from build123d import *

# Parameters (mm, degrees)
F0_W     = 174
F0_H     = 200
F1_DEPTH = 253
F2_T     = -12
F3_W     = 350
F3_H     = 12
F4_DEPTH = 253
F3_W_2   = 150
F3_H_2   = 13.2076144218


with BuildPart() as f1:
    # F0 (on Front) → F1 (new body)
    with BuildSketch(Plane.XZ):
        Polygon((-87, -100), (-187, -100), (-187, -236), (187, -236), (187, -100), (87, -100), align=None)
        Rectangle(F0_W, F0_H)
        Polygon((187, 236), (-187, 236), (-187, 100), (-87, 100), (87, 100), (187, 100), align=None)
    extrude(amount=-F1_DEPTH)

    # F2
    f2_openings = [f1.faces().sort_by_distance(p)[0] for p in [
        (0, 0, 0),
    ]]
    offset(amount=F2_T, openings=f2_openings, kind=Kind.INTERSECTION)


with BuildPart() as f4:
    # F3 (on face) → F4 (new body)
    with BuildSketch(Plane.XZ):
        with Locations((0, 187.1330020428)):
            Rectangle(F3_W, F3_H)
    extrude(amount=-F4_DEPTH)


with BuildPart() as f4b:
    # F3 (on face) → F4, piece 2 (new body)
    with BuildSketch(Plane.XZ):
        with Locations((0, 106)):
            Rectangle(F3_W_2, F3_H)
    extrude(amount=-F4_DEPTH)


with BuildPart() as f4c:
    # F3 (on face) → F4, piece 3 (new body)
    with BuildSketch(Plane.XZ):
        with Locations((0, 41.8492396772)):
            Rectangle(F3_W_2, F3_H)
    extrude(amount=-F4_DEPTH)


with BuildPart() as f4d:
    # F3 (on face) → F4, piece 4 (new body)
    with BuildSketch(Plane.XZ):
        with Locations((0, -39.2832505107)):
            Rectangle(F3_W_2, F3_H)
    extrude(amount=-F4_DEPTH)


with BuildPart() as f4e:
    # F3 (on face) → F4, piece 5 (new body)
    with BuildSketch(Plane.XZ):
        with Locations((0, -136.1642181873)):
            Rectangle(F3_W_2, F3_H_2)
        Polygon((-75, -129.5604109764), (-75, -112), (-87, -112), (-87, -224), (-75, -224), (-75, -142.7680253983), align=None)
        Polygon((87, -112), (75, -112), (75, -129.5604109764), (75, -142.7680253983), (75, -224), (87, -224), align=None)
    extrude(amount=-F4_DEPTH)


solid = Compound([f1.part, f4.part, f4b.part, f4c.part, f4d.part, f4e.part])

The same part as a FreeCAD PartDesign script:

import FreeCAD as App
import Part
import Sketcher
Q = App.Units.Quantity


def faces_at(feature, points):
    """Names of the faces that lie closest to the given points."""
    faces = feature.Shape.Faces
    near = lambda p: min(range(len(faces)), key=lambda i: faces[i].distToShape(Part.Vertex(*p))[0])
    return sorted({f"Face{near(p) + 1}" for p in points})

doc = App.newDocument("Part")
params = doc.addObject("Spreadsheet::Sheet", "Params")
for row, (alias, value) in enumerate([
    ("sketch1_width", "374 mm"),
    ("sketch1_width2", "100 mm"),
    ("sketch1_height", "136 mm"),
    ("sketch1_height2", "200 mm"),
    ("pad1_length", "253 mm"),
    ("thickness_wall", "12 mm"),
    ("sketch2_width", "350 mm"),
    ("sketch2_height", "12 mm"),
    ("pad2_length", "253 mm"),
    ("sketch3_width", "150 mm"),
    ("sketch3_height", "12 mm"),
    ("pad3_length", "253 mm"),
    ("sketch4_width", "150 mm"),
    ("sketch4_height", "12 mm"),
    ("pad4_length", "253 mm"),
    ("sketch5_width", "150 mm"),
    ("sketch5_height", "12 mm"),
    ("pad5_length", "253 mm"),
    ("sketch6_width", "150 mm"),
    ("sketch6_width2", "12 mm"),
    ("sketch6_height", "112 mm"),
    ("pad6_length", "253 mm"),
], start=1):
    params.set(f"A{row}", alias)
    params.set(f"B{row}", "=" + value)
    params.setAlias(f"B{row}", alias)

body = doc.addObject("PartDesign::Body", "Body")

# Sketch on XZ plane
sketch1 = body.newObject("Sketcher::SketchObject", "Sketch")
sketch1.AttachmentSupport = (doc.getObject("XZ_Plane"), [""])
sketch1.MapMode = "FlatFace"
sketch1.addGeometry(Part.LineSegment(App.Vector(-187, -100, 0), App.Vector(-187, -236, 0)), False)
sketch1.addGeometry(Part.LineSegment(App.Vector(-187, -236, 0), App.Vector(187, -236, 0)), False)
sketch1.addGeometry(Part.LineSegment(App.Vector(187, -236, 0), App.Vector(187, -100, 0)), False)
sketch1.addGeometry(Part.LineSegment(App.Vector(187, -100, 0), App.Vector(87, -100, 0)), False)
sketch1.addGeometry(Part.LineSegment(App.Vector(87, -100, 0), App.Vector(87, 100, 0)), False)
sketch1.addGeometry(Part.LineSegment(App.Vector(87, 100, 0), App.Vector(187, 100, 0)), False)
sketch1.addGeometry(Part.LineSegment(App.Vector(187, 100, 0), App.Vector(187, 236, 0)), False)
sketch1.addGeometry(Part.LineSegment(App.Vector(187, 236, 0), App.Vector(-187, 236, 0)), False)
sketch1.addGeometry(Part.LineSegment(App.Vector(-187, 236, 0), App.Vector(-187, 100, 0)), False)
sketch1.addGeometry(Part.LineSegment(App.Vector(-187, 100, 0), App.Vector(-87, 100, 0)), False)
sketch1.addGeometry(Part.LineSegment(App.Vector(-87, 100, 0), App.Vector(-87, -100, 0)), False)
sketch1.addGeometry(Part.LineSegment(App.Vector(-87, -100, 0), App.Vector(-187, -100, 0)), False)
sketch1.addConstraint(Sketcher.Constraint("Coincident", 0, 2, 1, 1))
sketch1.addConstraint(Sketcher.Constraint("Coincident", 1, 2, 2, 1))
sketch1.addConstraint(Sketcher.Constraint("Coincident", 2, 2, 3, 1))
sketch1.addConstraint(Sketcher.Constraint("Coincident", 3, 2, 4, 1))
sketch1.addConstraint(Sketcher.Constraint("Coincident", 4, 2, 5, 1))
sketch1.addConstraint(Sketcher.Constraint("Coincident", 5, 2, 6, 1))
sketch1.addConstraint(Sketcher.Constraint("Coincident", 6, 2, 7, 1))
sketch1.addConstraint(Sketcher.Constraint("Coincident", 7, 2, 8, 1))
sketch1.addConstraint(Sketcher.Constraint("Coincident", 8, 2, 9, 1))
sketch1.addConstraint(Sketcher.Constraint("Coincident", 9, 2, 10, 1))
sketch1.addConstraint(Sketcher.Constraint("Coincident", 10, 2, 11, 1))
sketch1.addConstraint(Sketcher.Constraint("Coincident", 11, 2, 0, 1))
sketch1.addConstraint(Sketcher.Constraint("Vertical", 0))
sketch1.addConstraint(Sketcher.Constraint("Horizontal", 1))
sketch1.addConstraint(Sketcher.Constraint("Vertical", 2))
sketch1.addConstraint(Sketcher.Constraint("Horizontal", 3))
sketch1.addConstraint(Sketcher.Constraint("Vertical", 4))
sketch1.addConstraint(Sketcher.Constraint("Horizontal", 5))
sketch1.addConstraint(Sketcher.Constraint("Vertical", 6))
sketch1.addConstraint(Sketcher.Constraint("Horizontal", 7))
sketch1.addConstraint(Sketcher.Constraint("Vertical", 8))
sketch1.addConstraint(Sketcher.Constraint("Horizontal", 9))
sketch1.addConstraint(Sketcher.Constraint("Vertical", 10))
sketch1.addConstraint(Sketcher.Constraint("Horizontal", 11))
sketch1.addConstraint(Sketcher.Constraint("Symmetric", 0, 2, 6, 2, -1, 1))
sketch1.addConstraint(Sketcher.Constraint("Symmetric", 2, 2, 8, 2, -1, 1))
sketch1.addConstraint(Sketcher.Constraint("Symmetric", 4, 2, 10, 2, -1, 1))
sketch1.addConstraint(Sketcher.Constraint("Symmetric", 5, 2, 8, 2, -2))
sketch1.addConstraint(Sketcher.Constraint("DistanceX", 1, 1, 1, 2, Q("374 mm")))
sketch1.addConstraint(Sketcher.Constraint("DistanceX", 3, 2, 3, 1, Q("100 mm")))
sketch1.addConstraint(Sketcher.Constraint("DistanceY", 0, 2, 0, 1, Q("136 mm")))
sketch1.addConstraint(Sketcher.Constraint("DistanceY", 4, 1, 4, 2, Q("200 mm")))
sketch1.setExpression("Constraints[28]", "Params.sketch1_width")
sketch1.setExpression("Constraints[29]", "Params.sketch1_width2")
sketch1.setExpression("Constraints[30]", "Params.sketch1_height")
sketch1.setExpression("Constraints[31]", "Params.sketch1_height2")
pad1 = body.newObject("PartDesign::Pad", "Pad")
pad1.Profile = sketch1
pad1.setExpression("Length", "Params.pad1_length")
pad1.Reversed = True
doc.recompute()

thickness = body.newObject("PartDesign::Thickness", "Thickness")
thickness.Base = (pad1, faces_at(pad1, [(0, 0, 0)]))
thickness.setExpression("Value", "Params.thickness_wall")
thickness.Reversed = True
thickness.Join = "Intersection"
body2 = doc.addObject("PartDesign::Body", "Body001")

# Sketch on XZ plane
sketch2 = body2.newObject("Sketcher::SketchObject", "Sketch001")
sketch2.AttachmentSupport = (doc.getObject("XZ_Plane001"), [""])
sketch2.MapMode = "FlatFace"
sketch2.addGeometry(Part.LineSegment(App.Vector(-175, 193, 0), App.Vector(-175, 181, 0)), False)
sketch2.addGeometry(Part.LineSegment(App.Vector(-175, 181, 0), App.Vector(175, 181, 0)), False)
sketch2.addGeometry(Part.LineSegment(App.Vector(175, 181, 0), App.Vector(175, 193, 0)), False)
sketch2.addGeometry(Part.LineSegment(App.Vector(175, 193, 0), App.Vector(-175, 193, 0)), False)
sketch2.addConstraint(Sketcher.Constraint("Coincident", 0, 2, 1, 1))
sketch2.addConstraint(Sketcher.Constraint("Coincident", 1, 2, 2, 1))
sketch2.addConstraint(Sketcher.Constraint("Coincident", 2, 2, 3, 1))
sketch2.addConstraint(Sketcher.Constraint("Coincident", 3, 2, 0, 1))
sketch2.addConstraint(Sketcher.Constraint("Vertical", 0))
sketch2.addConstraint(Sketcher.Constraint("Horizontal", 1))
sketch2.addConstraint(Sketcher.Constraint("Vertical", 2))
sketch2.addConstraint(Sketcher.Constraint("Horizontal", 3))
sketch2.addConstraint(Sketcher.Constraint("DistanceX", 1, 1, 1, 2, Q("350 mm")))
sketch2.addConstraint(Sketcher.Constraint("DistanceY", 0, 2, 0, 1, Q("12 mm")))
sketch2.addConstraint(Sketcher.Constraint("DistanceX", 0, 2, -1, 1, Q("175 mm")))
sketch2.addConstraint(Sketcher.Constraint("DistanceY", -1, 1, 0, 2, Q("181.133002 mm")))
sketch2.setExpression("Constraints[8]", "Params.sketch2_width")
sketch2.setExpression("Constraints[9]", "Params.sketch2_height")
pad2 = body2.newObject("PartDesign::Pad", "Pad001")
pad2.Profile = sketch2
pad2.setExpression("Length", "Params.pad2_length")
pad2.Reversed = True
body3 = doc.addObject("PartDesign::Body", "Body002")

# Sketch on XZ plane
sketch3 = body3.newObject("Sketcher::SketchObject", "Sketch002")
sketch3.AttachmentSupport = (doc.getObject("XZ_Plane002"), [""])
sketch3.MapMode = "FlatFace"
sketch3.addGeometry(Part.LineSegment(App.Vector(-75, 112, 0), App.Vector(-75, 100, 0)), False)
sketch3.addGeometry(Part.LineSegment(App.Vector(-75, 100, 0), App.Vector(75, 100, 0)), False)
sketch3.addGeometry(Part.LineSegment(App.Vector(75, 100, 0), App.Vector(75, 112, 0)), False)
sketch3.addGeometry(Part.LineSegment(App.Vector(75, 112, 0), App.Vector(-75, 112, 0)), False)
sketch3.addConstraint(Sketcher.Constraint("Coincident", 0, 2, 1, 1))
sketch3.addConstraint(Sketcher.Constraint("Coincident", 1, 2, 2, 1))
sketch3.addConstraint(Sketcher.Constraint("Coincident", 2, 2, 3, 1))
sketch3.addConstraint(Sketcher.Constraint("Coincident", 3, 2, 0, 1))
sketch3.addConstraint(Sketcher.Constraint("Vertical", 0))
sketch3.addConstraint(Sketcher.Constraint("Horizontal", 1))
sketch3.addConstraint(Sketcher.Constraint("Vertical", 2))
sketch3.addConstraint(Sketcher.Constraint("Horizontal", 3))
sketch3.addConstraint(Sketcher.Constraint("DistanceX", 1, 1, 1, 2, Q("150 mm")))
sketch3.addConstraint(Sketcher.Constraint("DistanceY", 0, 2, 0, 1, Q("12 mm")))
sketch3.addConstraint(Sketcher.Constraint("DistanceX", 0, 2, -1, 1, Q("75 mm")))
sketch3.addConstraint(Sketcher.Constraint("DistanceY", -1, 1, 0, 2, Q("100 mm")))
sketch3.setExpression("Constraints[8]", "Params.sketch3_width")
sketch3.setExpression("Constraints[9]", "Params.sketch3_height")
pad3 = body3.newObject("PartDesign::Pad", "Pad002")
pad3.Profile = sketch3
pad3.setExpression("Length", "Params.pad3_length")
pad3.Reversed = True
body4 = doc.addObject("PartDesign::Body", "Body003")

# Sketch on XZ plane
sketch4 = body4.newObject("Sketcher::SketchObject", "Sketch003")
sketch4.AttachmentSupport = (doc.getObject("XZ_Plane003"), [""])
sketch4.MapMode = "FlatFace"
sketch4.addGeometry(Part.LineSegment(App.Vector(-75, 48, 0), App.Vector(-75, 36, 0)), False)
sketch4.addGeometry(Part.LineSegment(App.Vector(-75, 36, 0), App.Vector(75, 36, 0)), False)
sketch4.addGeometry(Part.LineSegment(App.Vector(75, 36, 0), App.Vector(75, 48, 0)), False)
sketch4.addGeometry(Part.LineSegment(App.Vector(75, 48, 0), App.Vector(-75, 48, 0)), False)
sketch4.addConstraint(Sketcher.Constraint("Coincident", 0, 2, 1, 1))
sketch4.addConstraint(Sketcher.Constraint("Coincident", 1, 2, 2, 1))
sketch4.addConstraint(Sketcher.Constraint("Coincident", 2, 2, 3, 1))
sketch4.addConstraint(Sketcher.Constraint("Coincident", 3, 2, 0, 1))
sketch4.addConstraint(Sketcher.Constraint("Vertical", 0))
sketch4.addConstraint(Sketcher.Constraint("Horizontal", 1))
sketch4.addConstraint(Sketcher.Constraint("Vertical", 2))
sketch4.addConstraint(Sketcher.Constraint("Horizontal", 3))
sketch4.addConstraint(Sketcher.Constraint("DistanceX", 1, 1, 1, 2, Q("150 mm")))
sketch4.addConstraint(Sketcher.Constraint("DistanceY", 0, 2, 0, 1, Q("12 mm")))
sketch4.addConstraint(Sketcher.Constraint("DistanceX", 0, 2, -1, 1, Q("75 mm")))
sketch4.addConstraint(Sketcher.Constraint("DistanceY", -1, 1, 0, 2, Q("35.84924 mm")))
sketch4.setExpression("Constraints[8]", "Params.sketch4_width")
sketch4.setExpression("Constraints[9]", "Params.sketch4_height")
pad4 = body4.newObject("PartDesign::Pad", "Pad003")
pad4.Profile = sketch4
pad4.setExpression("Length", "Params.pad4_length")
pad4.Reversed = True
body5 = doc.addObject("PartDesign::Body", "Body004")

# Sketch on XZ plane
sketch5 = body5.newObject("Sketcher::SketchObject", "Sketch004")
sketch5.AttachmentSupport = (doc.getObject("XZ_Plane004"), [""])
sketch5.MapMode = "FlatFace"
sketch5.addGeometry(Part.LineSegment(App.Vector(-75, -33, 0), App.Vector(-75, -45, 0)), False)
sketch5.addGeometry(Part.LineSegment(App.Vector(-75, -45, 0), App.Vector(75, -45, 0)), False)
sketch5.addGeometry(Part.LineSegment(App.Vector(75, -45, 0), App.Vector(75, -33, 0)), False)
sketch5.addGeometry(Part.LineSegment(App.Vector(75, -33, 0), App.Vector(-75, -33, 0)), False)
sketch5.addConstraint(Sketcher.Constraint("Coincident", 0, 2, 1, 1))
sketch5.addConstraint(Sketcher.Constraint("Coincident", 1, 2, 2, 1))
sketch5.addConstraint(Sketcher.Constraint("Coincident", 2, 2, 3, 1))
sketch5.addConstraint(Sketcher.Constraint("Coincident", 3, 2, 0, 1))
sketch5.addConstraint(Sketcher.Constraint("Vertical", 0))
sketch5.addConstraint(Sketcher.Constraint("Horizontal", 1))
sketch5.addConstraint(Sketcher.Constraint("Vertical", 2))
sketch5.addConstraint(Sketcher.Constraint("Horizontal", 3))
sketch5.addConstraint(Sketcher.Constraint("DistanceX", 1, 1, 1, 2, Q("150 mm")))
sketch5.addConstraint(Sketcher.Constraint("DistanceY", 0, 2, 0, 1, Q("12 mm")))
sketch5.addConstraint(Sketcher.Constraint("DistanceX", 0, 2, -1, 1, Q("75 mm")))
sketch5.addConstraint(Sketcher.Constraint("DistanceY", 0, 2, -1, 1, Q("45.283251 mm")))
sketch5.setExpression("Constraints[8]", "Params.sketch5_width")
sketch5.setExpression("Constraints[9]", "Params.sketch5_height")
pad5 = body5.newObject("PartDesign::Pad", "Pad004")
pad5.Profile = sketch5
pad5.setExpression("Length", "Params.pad5_length")
pad5.Reversed = True
body6 = doc.addObject("PartDesign::Body", "Body005")

# Sketch on XZ plane
sketch6 = body6.newObject("Sketcher::SketchObject", "Sketch005")
sketch6.AttachmentSupport = (doc.getObject("XZ_Plane005"), [""])
sketch6.MapMode = "FlatFace"
sketch6.addGeometry(Part.LineSegment(App.Vector(-75, -143, 0), App.Vector(75, -143, 0)), False)
sketch6.addGeometry(Part.LineSegment(App.Vector(75, -143, 0), App.Vector(75, -224, 0)), False)
sketch6.addGeometry(Part.LineSegment(App.Vector(75, -224, 0), App.Vector(87, -224, 0)), False)
sketch6.addGeometry(Part.LineSegment(App.Vector(87, -224, 0), App.Vector(87, -112, 0)), False)
sketch6.addGeometry(Part.LineSegment(App.Vector(87, -112, 0), App.Vector(75, -112, 0)), False)
sketch6.addGeometry(Part.LineSegment(App.Vector(75, -112, 0), App.Vector(75, -130, 0)), False)
sketch6.addGeometry(Part.LineSegment(App.Vector(75, -130, 0), App.Vector(-75, -130, 0)), False)
sketch6.addGeometry(Part.LineSegment(App.Vector(-75, -130, 0), App.Vector(-75, -112, 0)), False)
sketch6.addGeometry(Part.LineSegment(App.Vector(-75, -112, 0), App.Vector(-87, -112, 0)), False)
sketch6.addGeometry(Part.LineSegment(App.Vector(-87, -112, 0), App.Vector(-87, -224, 0)), False)
sketch6.addGeometry(Part.LineSegment(App.Vector(-87, -224, 0), App.Vector(-75, -224, 0)), False)
sketch6.addGeometry(Part.LineSegment(App.Vector(-75, -224, 0), App.Vector(-75, -143, 0)), False)
sketch6.addConstraint(Sketcher.Constraint("Coincident", 0, 2, 1, 1))
sketch6.addConstraint(Sketcher.Constraint("Coincident", 1, 2, 2, 1))
sketch6.addConstraint(Sketcher.Constraint("Coincident", 2, 2, 3, 1))
sketch6.addConstraint(Sketcher.Constraint("Coincident", 3, 2, 4, 1))
sketch6.addConstraint(Sketcher.Constraint("Coincident", 4, 2, 5, 1))
sketch6.addConstraint(Sketcher.Constraint("Coincident", 5, 2, 6, 1))
sketch6.addConstraint(Sketcher.Constraint("Coincident", 6, 2, 7, 1))
sketch6.addConstraint(Sketcher.Constraint("Coincident", 7, 2, 8, 1))
sketch6.addConstraint(Sketcher.Constraint("Coincident", 8, 2, 9, 1))
sketch6.addConstraint(Sketcher.Constraint("Coincident", 9, 2, 10, 1))
sketch6.addConstraint(Sketcher.Constraint("Coincident", 10, 2, 11, 1))
sketch6.addConstraint(Sketcher.Constraint("Coincident", 11, 2, 0, 1))
sketch6.addConstraint(Sketcher.Constraint("Horizontal", 0))
sketch6.addConstraint(Sketcher.Constraint("Vertical", 1))
sketch6.addConstraint(Sketcher.Constraint("Horizontal", 2))
sketch6.addConstraint(Sketcher.Constraint("Vertical", 3))
sketch6.addConstraint(Sketcher.Constraint("Horizontal", 4))
sketch6.addConstraint(Sketcher.Constraint("Vertical", 5))
sketch6.addConstraint(Sketcher.Constraint("Horizontal", 6))
sketch6.addConstraint(Sketcher.Constraint("Vertical", 7))
sketch6.addConstraint(Sketcher.Constraint("Horizontal", 8))
sketch6.addConstraint(Sketcher.Constraint("Vertical", 9))
sketch6.addConstraint(Sketcher.Constraint("Horizontal", 10))
sketch6.addConstraint(Sketcher.Constraint("Vertical", 11))
sketch6.addConstraint(Sketcher.Constraint("Symmetric", 4, 2, 7, 2, -2))
sketch6.addConstraint(Sketcher.Constraint("Symmetric", 2, 2, 9, 2, -2))
sketch6.addConstraint(Sketcher.Constraint("Vertical", 1, 2, 4, 2))
sketch6.addConstraint(Sketcher.Constraint("Vertical", 7, 2, 10, 2))
sketch6.addConstraint(Sketcher.Constraint("DistanceX", 0, 1, 0, 2, Q("150 mm")))
sketch6.addConstraint(Sketcher.Constraint("DistanceX", 2, 1, 2, 2, Q("12 mm")))
sketch6.addConstraint(Sketcher.Constraint("DistanceY", 3, 1, 3, 2, Q("112 mm")))
sketch6.addConstraint(Sketcher.Constraint("DistanceY", 1, 2, -1, 1, Q("224 mm")))
sketch6.addConstraint(Sketcher.Constraint("DistanceY", 5, 2, 5, 1, Q("17.560411 mm")))
sketch6.addConstraint(Sketcher.Constraint("DistanceY", 1, 2, 1, 1, Q("81.231975 mm")))
sketch6.setExpression("Constraints[28]", "Params.sketch6_width")
sketch6.setExpression("Constraints[29]", "Params.sketch6_width2")
sketch6.setExpression("Constraints[30]", "Params.sketch6_height")
pad6 = body6.newObject("PartDesign::Pad", "Pad005")
pad6.Profile = sketch6
pad6.setExpression("Length", "Params.pad6_length")
pad6.Reversed = True

doc.recompute()
